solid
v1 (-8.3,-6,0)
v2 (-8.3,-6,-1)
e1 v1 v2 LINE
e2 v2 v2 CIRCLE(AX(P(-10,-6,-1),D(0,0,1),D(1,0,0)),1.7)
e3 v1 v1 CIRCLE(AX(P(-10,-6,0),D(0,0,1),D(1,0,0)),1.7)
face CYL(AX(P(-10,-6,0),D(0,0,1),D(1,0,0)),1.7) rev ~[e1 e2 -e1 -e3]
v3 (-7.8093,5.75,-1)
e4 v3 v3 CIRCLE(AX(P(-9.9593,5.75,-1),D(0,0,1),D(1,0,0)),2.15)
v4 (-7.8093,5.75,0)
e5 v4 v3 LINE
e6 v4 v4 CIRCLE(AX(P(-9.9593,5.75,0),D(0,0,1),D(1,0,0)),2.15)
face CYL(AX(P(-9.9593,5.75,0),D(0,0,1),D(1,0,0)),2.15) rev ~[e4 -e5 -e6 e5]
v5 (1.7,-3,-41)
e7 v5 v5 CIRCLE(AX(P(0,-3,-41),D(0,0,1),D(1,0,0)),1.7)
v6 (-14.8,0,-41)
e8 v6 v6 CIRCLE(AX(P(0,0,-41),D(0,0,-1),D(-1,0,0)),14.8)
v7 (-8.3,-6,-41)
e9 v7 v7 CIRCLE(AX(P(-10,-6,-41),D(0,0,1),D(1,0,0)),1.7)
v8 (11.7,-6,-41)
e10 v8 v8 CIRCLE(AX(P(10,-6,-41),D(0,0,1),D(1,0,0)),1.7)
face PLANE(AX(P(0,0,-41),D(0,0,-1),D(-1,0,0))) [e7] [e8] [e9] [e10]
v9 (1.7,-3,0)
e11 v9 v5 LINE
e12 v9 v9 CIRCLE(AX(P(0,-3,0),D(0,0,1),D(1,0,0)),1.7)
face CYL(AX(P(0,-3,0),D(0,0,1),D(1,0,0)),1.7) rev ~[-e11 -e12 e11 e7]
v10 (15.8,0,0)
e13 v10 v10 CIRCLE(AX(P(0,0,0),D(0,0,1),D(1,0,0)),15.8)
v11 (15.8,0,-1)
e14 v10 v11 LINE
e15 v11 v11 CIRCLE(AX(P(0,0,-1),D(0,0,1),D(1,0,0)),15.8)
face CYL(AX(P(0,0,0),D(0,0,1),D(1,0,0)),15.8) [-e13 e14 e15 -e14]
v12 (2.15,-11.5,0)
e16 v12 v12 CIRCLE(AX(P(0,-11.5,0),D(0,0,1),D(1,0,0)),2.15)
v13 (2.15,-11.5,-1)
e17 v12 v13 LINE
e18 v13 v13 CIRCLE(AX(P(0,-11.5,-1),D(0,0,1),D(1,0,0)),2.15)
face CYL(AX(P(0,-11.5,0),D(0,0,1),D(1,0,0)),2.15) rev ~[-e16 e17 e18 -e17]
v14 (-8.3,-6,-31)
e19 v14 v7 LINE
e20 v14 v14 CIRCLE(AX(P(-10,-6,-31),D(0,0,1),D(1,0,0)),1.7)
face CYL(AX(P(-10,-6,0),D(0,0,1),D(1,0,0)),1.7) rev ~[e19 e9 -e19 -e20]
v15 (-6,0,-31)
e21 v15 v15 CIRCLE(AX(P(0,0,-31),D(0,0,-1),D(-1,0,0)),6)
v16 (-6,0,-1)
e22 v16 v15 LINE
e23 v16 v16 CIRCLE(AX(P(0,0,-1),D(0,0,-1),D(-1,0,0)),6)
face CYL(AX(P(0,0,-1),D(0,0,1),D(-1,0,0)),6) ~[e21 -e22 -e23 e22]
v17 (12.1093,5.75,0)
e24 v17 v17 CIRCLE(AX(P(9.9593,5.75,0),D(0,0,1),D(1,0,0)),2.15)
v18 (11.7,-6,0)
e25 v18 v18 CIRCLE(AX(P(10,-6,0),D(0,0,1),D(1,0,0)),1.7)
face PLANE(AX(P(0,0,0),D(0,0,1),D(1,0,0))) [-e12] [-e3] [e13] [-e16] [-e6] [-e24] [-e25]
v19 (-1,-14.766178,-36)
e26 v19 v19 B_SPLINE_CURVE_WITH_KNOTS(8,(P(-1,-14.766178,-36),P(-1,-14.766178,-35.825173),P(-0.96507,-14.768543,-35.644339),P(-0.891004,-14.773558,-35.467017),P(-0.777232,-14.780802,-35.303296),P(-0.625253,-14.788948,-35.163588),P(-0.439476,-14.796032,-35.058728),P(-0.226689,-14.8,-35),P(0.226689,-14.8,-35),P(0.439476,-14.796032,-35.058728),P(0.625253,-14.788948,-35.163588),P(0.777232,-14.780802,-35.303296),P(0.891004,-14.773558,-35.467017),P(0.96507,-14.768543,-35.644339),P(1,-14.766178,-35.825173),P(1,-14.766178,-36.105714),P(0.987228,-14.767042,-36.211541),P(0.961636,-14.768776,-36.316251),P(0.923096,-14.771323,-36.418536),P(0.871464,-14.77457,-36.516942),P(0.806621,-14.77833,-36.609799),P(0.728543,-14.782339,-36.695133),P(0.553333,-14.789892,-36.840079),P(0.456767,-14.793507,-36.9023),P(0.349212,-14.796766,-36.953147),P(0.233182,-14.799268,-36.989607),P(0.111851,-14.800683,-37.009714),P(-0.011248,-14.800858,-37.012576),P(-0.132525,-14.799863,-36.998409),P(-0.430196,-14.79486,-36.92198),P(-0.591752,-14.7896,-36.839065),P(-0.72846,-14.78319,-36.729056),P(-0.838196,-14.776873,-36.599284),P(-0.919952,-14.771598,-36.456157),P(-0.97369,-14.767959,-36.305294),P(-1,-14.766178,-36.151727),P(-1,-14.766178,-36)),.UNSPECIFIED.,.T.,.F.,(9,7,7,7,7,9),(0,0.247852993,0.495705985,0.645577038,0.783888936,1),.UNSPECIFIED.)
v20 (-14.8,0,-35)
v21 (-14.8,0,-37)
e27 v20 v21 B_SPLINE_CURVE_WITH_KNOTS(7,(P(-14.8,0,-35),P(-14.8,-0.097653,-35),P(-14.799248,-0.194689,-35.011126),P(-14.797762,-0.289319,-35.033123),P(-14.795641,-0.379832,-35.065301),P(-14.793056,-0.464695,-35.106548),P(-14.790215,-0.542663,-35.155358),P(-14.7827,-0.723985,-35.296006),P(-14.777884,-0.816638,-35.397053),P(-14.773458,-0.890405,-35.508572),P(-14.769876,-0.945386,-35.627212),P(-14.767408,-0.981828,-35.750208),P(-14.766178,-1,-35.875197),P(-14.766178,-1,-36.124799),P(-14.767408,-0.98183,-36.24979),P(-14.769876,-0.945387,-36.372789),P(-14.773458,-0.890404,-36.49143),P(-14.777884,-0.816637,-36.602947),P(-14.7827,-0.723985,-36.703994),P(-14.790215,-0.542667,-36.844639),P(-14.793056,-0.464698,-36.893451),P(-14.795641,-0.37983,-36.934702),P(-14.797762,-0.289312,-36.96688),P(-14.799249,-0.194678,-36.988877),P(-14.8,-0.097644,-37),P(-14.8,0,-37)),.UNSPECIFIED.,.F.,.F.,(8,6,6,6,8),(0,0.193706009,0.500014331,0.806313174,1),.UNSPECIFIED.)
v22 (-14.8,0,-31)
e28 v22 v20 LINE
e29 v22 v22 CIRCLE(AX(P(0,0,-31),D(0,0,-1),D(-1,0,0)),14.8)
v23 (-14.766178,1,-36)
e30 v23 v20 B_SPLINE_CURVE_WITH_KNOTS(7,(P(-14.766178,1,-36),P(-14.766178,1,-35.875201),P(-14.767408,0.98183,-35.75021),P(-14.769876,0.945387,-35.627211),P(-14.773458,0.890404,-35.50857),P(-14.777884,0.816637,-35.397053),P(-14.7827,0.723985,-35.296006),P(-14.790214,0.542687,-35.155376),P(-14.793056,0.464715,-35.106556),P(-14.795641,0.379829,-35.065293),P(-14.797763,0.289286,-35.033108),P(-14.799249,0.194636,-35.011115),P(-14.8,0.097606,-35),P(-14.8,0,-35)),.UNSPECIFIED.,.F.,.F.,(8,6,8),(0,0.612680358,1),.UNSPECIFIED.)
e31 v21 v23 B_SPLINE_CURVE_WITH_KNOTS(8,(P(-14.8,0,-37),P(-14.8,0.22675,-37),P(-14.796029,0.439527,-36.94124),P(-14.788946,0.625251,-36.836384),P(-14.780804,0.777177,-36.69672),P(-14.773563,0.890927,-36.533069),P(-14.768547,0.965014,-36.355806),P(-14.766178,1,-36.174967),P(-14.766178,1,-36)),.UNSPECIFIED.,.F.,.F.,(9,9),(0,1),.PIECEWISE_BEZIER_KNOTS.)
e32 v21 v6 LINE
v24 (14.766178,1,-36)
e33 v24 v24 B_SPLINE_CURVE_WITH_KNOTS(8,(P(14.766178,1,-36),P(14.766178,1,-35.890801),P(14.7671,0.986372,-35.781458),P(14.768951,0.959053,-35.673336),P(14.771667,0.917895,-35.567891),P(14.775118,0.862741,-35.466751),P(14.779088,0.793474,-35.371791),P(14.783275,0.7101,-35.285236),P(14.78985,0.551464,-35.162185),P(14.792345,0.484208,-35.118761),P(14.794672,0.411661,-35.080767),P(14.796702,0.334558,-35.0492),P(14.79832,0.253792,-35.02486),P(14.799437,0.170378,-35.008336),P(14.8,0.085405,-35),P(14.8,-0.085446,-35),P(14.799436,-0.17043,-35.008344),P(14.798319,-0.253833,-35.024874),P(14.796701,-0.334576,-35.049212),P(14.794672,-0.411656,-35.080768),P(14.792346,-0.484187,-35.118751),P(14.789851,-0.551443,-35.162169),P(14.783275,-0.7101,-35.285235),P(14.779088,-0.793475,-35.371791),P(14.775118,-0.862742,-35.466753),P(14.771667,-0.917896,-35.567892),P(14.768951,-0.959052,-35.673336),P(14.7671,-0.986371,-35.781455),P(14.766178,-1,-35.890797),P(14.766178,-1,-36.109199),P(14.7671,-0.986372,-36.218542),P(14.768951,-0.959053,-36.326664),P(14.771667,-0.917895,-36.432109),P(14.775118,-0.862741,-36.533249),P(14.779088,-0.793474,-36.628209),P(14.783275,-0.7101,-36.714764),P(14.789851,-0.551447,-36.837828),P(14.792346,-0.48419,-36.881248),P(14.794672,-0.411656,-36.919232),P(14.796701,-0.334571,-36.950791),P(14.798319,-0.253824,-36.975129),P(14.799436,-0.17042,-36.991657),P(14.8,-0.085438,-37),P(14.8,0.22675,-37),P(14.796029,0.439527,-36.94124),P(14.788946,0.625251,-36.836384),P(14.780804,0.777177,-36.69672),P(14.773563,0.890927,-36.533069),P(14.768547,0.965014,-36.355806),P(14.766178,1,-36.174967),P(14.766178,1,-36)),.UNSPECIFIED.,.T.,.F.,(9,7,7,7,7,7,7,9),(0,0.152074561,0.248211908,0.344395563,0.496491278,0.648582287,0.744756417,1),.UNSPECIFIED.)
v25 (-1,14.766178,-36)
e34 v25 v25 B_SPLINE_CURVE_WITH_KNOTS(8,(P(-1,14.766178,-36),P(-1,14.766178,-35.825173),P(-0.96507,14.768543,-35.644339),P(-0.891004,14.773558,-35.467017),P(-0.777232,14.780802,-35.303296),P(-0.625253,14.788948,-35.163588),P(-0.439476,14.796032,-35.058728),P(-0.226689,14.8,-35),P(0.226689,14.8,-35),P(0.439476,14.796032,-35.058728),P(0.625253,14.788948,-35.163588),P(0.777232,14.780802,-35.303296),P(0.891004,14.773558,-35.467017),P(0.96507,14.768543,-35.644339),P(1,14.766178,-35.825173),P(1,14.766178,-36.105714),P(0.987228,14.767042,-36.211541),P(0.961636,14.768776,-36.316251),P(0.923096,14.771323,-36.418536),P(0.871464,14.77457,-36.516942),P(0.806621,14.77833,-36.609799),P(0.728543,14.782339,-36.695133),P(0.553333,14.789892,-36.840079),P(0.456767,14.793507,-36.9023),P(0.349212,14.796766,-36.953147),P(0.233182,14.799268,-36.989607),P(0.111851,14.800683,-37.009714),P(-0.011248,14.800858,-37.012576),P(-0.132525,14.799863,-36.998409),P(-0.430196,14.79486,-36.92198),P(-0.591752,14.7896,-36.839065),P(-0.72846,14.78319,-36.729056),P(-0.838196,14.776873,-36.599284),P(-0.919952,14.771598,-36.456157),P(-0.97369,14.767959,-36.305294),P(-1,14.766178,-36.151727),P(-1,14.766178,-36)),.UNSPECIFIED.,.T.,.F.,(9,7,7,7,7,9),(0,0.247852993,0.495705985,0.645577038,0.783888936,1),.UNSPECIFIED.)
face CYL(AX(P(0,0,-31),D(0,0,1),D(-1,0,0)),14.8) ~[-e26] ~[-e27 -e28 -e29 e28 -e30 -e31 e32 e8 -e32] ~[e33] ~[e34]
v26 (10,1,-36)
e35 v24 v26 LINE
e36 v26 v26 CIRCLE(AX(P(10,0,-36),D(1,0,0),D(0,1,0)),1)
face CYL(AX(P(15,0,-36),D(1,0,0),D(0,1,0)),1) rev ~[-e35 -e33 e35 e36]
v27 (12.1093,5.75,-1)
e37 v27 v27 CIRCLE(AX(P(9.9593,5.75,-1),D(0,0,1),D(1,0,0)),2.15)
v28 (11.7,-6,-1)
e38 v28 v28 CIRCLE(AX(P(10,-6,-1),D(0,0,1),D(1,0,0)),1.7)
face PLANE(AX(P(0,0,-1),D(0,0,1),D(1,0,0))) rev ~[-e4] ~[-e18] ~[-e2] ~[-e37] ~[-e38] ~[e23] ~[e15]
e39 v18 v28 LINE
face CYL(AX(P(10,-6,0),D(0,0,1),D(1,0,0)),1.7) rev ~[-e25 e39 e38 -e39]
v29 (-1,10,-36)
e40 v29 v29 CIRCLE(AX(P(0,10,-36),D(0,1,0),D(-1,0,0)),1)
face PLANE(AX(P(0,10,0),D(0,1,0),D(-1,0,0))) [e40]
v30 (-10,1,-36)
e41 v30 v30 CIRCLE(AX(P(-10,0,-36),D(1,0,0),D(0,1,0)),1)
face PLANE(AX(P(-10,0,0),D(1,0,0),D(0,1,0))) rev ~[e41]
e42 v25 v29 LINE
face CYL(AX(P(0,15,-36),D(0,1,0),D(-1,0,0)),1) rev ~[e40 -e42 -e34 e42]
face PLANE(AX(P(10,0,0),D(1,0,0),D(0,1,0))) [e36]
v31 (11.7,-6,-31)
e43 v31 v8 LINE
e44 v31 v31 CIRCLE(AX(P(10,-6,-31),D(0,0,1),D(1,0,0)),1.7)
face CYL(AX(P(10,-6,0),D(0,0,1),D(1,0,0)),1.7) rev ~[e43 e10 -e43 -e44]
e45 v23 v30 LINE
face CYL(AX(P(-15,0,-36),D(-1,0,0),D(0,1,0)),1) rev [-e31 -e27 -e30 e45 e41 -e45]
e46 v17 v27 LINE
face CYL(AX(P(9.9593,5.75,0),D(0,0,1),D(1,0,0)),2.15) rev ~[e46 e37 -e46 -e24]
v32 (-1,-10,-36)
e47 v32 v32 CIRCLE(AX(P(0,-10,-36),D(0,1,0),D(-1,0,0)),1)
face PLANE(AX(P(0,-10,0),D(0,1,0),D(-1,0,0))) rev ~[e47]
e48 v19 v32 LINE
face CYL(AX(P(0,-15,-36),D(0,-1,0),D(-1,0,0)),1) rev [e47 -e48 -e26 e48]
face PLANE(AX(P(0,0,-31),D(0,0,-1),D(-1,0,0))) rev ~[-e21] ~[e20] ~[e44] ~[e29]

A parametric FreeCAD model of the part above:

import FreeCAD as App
import Part
import Sketcher
Q = App.Units.Quantity

doc = App.newDocument("Part")
body = doc.addObject("PartDesign::Body", "Body")

# Sketch on XY plane
sketch1 = doc.addObject("Sketcher::SketchObject", "Sketch")
body.addObject(sketch1)
sketch1.AttachmentSupport = (doc.XY_Plane, [""])
sketch1.MapMode = "FlatFace"
sketch1.addGeometry(Part.Circle(App.Vector(0, 0, 0), App.Vector(0, 0, 1), 16), False)
sketch1.addConstraint(Sketcher.Constraint("Coincident", 0, 3, -1, 1))
sketch1.addConstraint(Sketcher.Constraint("Diameter", 0, Q("31.6 mm")))
pad1 = doc.addObject("PartDesign::Pad", "Pad")
body.addObject(pad1)
pad1.Profile = sketch1
pad1.Length = 1
pad1.Reversed = True

# Sketch on XY plane
sketch2 = doc.addObject("Sketcher::SketchObject", "Sketch001")
body.addObject(sketch2)
sketch2.AttachmentSupport = (doc.XY_Plane, [""])
sketch2.MapMode = "FlatFace"
sketch2.AttachmentOffset = App.Placement(App.Vector(0, 0, -1), App.Rotation())
sketch2.addGeometry(Part.Circle(App.Vector(0, 0, 0), App.Vector(0, 0, 1), 6), False)
sketch2.addConstraint(Sketcher.Constraint("Coincident", 0, 3, -1, 1))
sketch2.addConstraint(Sketcher.Constraint("Diameter", 0, Q("12 mm")))
pad2 = doc.addObject("PartDesign::Pad", "Pad001")
body.addObject(pad2)
pad2.Profile = sketch2
pad2.Length = 30
pad2.Reversed = True

# Sketch on XY plane
sketch3 = doc.addObject("Sketcher::SketchObject", "Sketch002")
body.addObject(sketch3)
sketch3.AttachmentSupport = (doc.XY_Plane, [""])
sketch3.MapMode = "FlatFace"
sketch3.AttachmentOffset = App.Placement(App.Vector(0, 0, -31), App.Rotation())
sketch3.addGeometry(Part.Circle(App.Vector(0, 0, 0), App.Vector(0, 0, 1), 15), False)
sketch3.addConstraint(Sketcher.Constraint("Coincident", 0, 3, -1, 1))
sketch3.addConstraint(Sketcher.Constraint("Diameter", 0, Q("29.6 mm")))
pad3 = doc.addObject("PartDesign::Pad", "Pad002")
body.addObject(pad3)
pad3.Profile = sketch3
pad3.Length = 10
pad3.Reversed = True

# Sketch on XY plane
sketch4 = doc.addObject("Sketcher::SketchObject", "Sketch003")
body.addObject(sketch4)
sketch4.AttachmentSupport = (doc.XY_Plane, [""])
sketch4.MapMode = "FlatFace"
sketch4.addGeometry(Part.Circle(App.Vector(0, -3, 0), App.Vector(0, 0, 1), 1.7), False)
sketch4.addGeometry(Part.Circle(App.Vector(-10, -6, 0), App.Vector(0, 0, 1), 1.7), False)
sketch4.addGeometry(Part.Circle(App.Vector(10, -6, 0), App.Vector(0, 0, 1), 1.7), False)
sketch4.addConstraint(Sketcher.Constraint("Equal", 0, 1))
sketch4.addConstraint(Sketcher.Constraint("Equal", 1, 2))
sketch4.addConstraint(Sketcher.Constraint("Symmetric", 1, 3, 2, 3, -2))
sketch4.addConstraint(Sketcher.Constraint("PointOnObject", 0, 3, -2))
sketch4.addConstraint(Sketcher.Constraint("Diameter", 0, Q("3.4 mm")))
sketch4.addConstraint(Sketcher.Constraint("DistanceY", 0, 3, -1, 1, Q("3 mm")))
sketch4.addConstraint(Sketcher.Constraint("DistanceX", 1, 3, -1, 1, Q("10 mm")))
sketch4.addConstraint(Sketcher.Constraint("DistanceY", 1, 3, -1, 1, Q("6 mm")))
pocket1 = doc.addObject("PartDesign::Pocket", "Pocket")
body.addObject(pocket1)
pocket1.Profile = sketch4
pocket1.Type = "ThroughAll"

# Sketch on XY plane
sketch5 = doc.addObject("Sketcher::SketchObject", "Sketch004")
body.addObject(sketch5)
sketch5.AttachmentSupport = (doc.XY_Plane, [""])
sketch5.MapMode = "FlatFace"
sketch5.addGeometry(Part.Circle(App.Vector(0, -11.5, 0), App.Vector(0, 0, 1), 2.1), False)
sketch5.addGeometry(Part.Circle(App.Vector(10, 5.8, 0), App.Vector(0, 0, 1), 2.1), False)
sketch5.addGeometry(Part.Circle(App.Vector(-10, 5.8, 0), App.Vector(0, 0, 1), 2.1), False)
sketch5.addConstraint(Sketcher.Constraint("Equal", 0, 1))
sketch5.addConstraint(Sketcher.Constraint("Equal", 1, 2))
sketch5.addConstraint(Sketcher.Constraint("Symmetric", 1, 3, 2, 3, -2))
sketch5.addConstraint(Sketcher.Constraint("PointOnObject", 0, 3, -2))
sketch5.addConstraint(Sketcher.Constraint("Diameter", 0, Q("4.3 mm")))
sketch5.addConstraint(Sketcher.Constraint("DistanceY", 0, 3, -1, 1, Q("11.5 mm")))
sketch5.addConstraint(Sketcher.Constraint("DistanceY", -1, 1, 1, 3, Q("5.75 mm")))
sketch5.addConstraint(Sketcher.Constraint("DistanceX", -1, 1, 1, 3, Q("9.9593 mm")))
pocket2 = doc.addObject("PartDesign::Pocket", "Pocket001")
body.addObject(pocket2)
pocket2.Profile = sketch5
pocket2.Length = 1

# Sketch on YZ plane
sketch6 = doc.addObject("Sketcher::SketchObject", "Sketch005")
body.addObject(sketch6)
sketch6.AttachmentSupport = (doc.YZ_Plane, [""])
sketch6.MapMode = "FlatFace"
sketch6.AttachmentOffset = App.Placement(App.Vector(0, 0, 15), App.Rotation())
sketch6.addGeometry(Part.Circle(App.Vector(0, -36, 0), App.Vector(0, 0, 1), 1), False)
sketch6.addConstraint(Sketcher.Constraint("PointOnObject", 0, 3, -2))
sketch6.addConstraint(Sketcher.Constraint("Diameter", 0, Q("2 mm")))
sketch6.addConstraint(Sketcher.Constraint("DistanceY", 0, 3, -1, 1, Q("36 mm")))
pocket3 = doc.addObject("PartDesign::Pocket", "Pocket002")
body.addObject(pocket3)
pocket3.Profile = sketch6
pocket3.Length = 5

# Sketch on XZ plane
sketch7 = doc.addObject("Sketcher::SketchObject", "Sketch006")
body.addObject(sketch7)
sketch7.AttachmentSupport = (doc.XZ_Plane, [""])
sketch7.MapMode = "FlatFace"
sketch7.AttachmentOffset = App.Placement(App.Vector(0, 0, -15), App.Rotation())
sketch7.addGeometry(Part.Circle(App.Vector(0, -36, 0), App.Vector(0, 0, 1), 1), False)
sketch7.addConstraint(Sketcher.Constraint("PointOnObject", 0, 3, -2))
sketch7.addConstraint(Sketcher.Constraint("Diameter", 0, Q("2 mm")))
sketch7.addConstraint(Sketcher.Constraint("DistanceY", 0, 3, -1, 1, Q("36 mm")))
pocket4 = doc.addObject("PartDesign::Pocket", "Pocket003")
body.addObject(pocket4)
pocket4.Profile = sketch7
pocket4.Length = 5
pocket4.Reversed = True

# Sketch on YZ plane
sketch8 = doc.addObject("Sketcher::SketchObject", "Sketch007")
body.addObject(sketch8)
sketch8.AttachmentSupport = (doc.YZ_Plane, [""])
sketch8.MapMode = "FlatFace"
sketch8.AttachmentOffset = App.Placement(App.Vector(0, 0, -15), App.Rotation())
sketch8.addGeometry(Part.Circle(App.Vector(0, -36, 0), App.Vector(0, 0, 1), 1), False)
sketch8.addConstraint(Sketcher.Constraint("PointOnObject", 0, 3, -2))
sketch8.addConstraint(Sketcher.Constraint("Diameter", 0, Q("2 mm")))
sketch8.addConstraint(Sketcher.Constraint("DistanceY", 0, 3, -1, 1, Q("36 mm")))
pocket5 = doc.addObject("PartDesign::Pocket", "Pocket004")
body.addObject(pocket5)
pocket5.Profile = sketch8
pocket5.Length = 5
pocket5.Reversed = True

# Sketch on XZ plane
sketch9 = doc.addObject("Sketcher::SketchObject", "Sketch008")
body.addObject(sketch9)
sketch9.AttachmentSupport = (doc.XZ_Plane, [""])
sketch9.MapMode = "FlatFace"
sketch9.AttachmentOffset = App.Placement(App.Vector(0, 0, 15), App.Rotation())
sketch9.addGeometry(Part.Circle(App.Vector(0, -36, 0), App.Vector(0, 0, 1), 1), False)
sketch9.addConstraint(Sketcher.Constraint("PointOnObject", 0, 3, -2))
sketch9.addConstraint(Sketcher.Constraint("Diameter", 0, Q("2 mm")))
sketch9.addConstraint(Sketcher.Constraint("DistanceY", 0, 3, -1, 1, Q("36 mm")))
pocket6 = doc.addObject("PartDesign::Pocket", "Pocket005")
body.addObject(pocket6)
pocket6.Profile = sketch9
pocket6.Length = 5

doc.recompute()
